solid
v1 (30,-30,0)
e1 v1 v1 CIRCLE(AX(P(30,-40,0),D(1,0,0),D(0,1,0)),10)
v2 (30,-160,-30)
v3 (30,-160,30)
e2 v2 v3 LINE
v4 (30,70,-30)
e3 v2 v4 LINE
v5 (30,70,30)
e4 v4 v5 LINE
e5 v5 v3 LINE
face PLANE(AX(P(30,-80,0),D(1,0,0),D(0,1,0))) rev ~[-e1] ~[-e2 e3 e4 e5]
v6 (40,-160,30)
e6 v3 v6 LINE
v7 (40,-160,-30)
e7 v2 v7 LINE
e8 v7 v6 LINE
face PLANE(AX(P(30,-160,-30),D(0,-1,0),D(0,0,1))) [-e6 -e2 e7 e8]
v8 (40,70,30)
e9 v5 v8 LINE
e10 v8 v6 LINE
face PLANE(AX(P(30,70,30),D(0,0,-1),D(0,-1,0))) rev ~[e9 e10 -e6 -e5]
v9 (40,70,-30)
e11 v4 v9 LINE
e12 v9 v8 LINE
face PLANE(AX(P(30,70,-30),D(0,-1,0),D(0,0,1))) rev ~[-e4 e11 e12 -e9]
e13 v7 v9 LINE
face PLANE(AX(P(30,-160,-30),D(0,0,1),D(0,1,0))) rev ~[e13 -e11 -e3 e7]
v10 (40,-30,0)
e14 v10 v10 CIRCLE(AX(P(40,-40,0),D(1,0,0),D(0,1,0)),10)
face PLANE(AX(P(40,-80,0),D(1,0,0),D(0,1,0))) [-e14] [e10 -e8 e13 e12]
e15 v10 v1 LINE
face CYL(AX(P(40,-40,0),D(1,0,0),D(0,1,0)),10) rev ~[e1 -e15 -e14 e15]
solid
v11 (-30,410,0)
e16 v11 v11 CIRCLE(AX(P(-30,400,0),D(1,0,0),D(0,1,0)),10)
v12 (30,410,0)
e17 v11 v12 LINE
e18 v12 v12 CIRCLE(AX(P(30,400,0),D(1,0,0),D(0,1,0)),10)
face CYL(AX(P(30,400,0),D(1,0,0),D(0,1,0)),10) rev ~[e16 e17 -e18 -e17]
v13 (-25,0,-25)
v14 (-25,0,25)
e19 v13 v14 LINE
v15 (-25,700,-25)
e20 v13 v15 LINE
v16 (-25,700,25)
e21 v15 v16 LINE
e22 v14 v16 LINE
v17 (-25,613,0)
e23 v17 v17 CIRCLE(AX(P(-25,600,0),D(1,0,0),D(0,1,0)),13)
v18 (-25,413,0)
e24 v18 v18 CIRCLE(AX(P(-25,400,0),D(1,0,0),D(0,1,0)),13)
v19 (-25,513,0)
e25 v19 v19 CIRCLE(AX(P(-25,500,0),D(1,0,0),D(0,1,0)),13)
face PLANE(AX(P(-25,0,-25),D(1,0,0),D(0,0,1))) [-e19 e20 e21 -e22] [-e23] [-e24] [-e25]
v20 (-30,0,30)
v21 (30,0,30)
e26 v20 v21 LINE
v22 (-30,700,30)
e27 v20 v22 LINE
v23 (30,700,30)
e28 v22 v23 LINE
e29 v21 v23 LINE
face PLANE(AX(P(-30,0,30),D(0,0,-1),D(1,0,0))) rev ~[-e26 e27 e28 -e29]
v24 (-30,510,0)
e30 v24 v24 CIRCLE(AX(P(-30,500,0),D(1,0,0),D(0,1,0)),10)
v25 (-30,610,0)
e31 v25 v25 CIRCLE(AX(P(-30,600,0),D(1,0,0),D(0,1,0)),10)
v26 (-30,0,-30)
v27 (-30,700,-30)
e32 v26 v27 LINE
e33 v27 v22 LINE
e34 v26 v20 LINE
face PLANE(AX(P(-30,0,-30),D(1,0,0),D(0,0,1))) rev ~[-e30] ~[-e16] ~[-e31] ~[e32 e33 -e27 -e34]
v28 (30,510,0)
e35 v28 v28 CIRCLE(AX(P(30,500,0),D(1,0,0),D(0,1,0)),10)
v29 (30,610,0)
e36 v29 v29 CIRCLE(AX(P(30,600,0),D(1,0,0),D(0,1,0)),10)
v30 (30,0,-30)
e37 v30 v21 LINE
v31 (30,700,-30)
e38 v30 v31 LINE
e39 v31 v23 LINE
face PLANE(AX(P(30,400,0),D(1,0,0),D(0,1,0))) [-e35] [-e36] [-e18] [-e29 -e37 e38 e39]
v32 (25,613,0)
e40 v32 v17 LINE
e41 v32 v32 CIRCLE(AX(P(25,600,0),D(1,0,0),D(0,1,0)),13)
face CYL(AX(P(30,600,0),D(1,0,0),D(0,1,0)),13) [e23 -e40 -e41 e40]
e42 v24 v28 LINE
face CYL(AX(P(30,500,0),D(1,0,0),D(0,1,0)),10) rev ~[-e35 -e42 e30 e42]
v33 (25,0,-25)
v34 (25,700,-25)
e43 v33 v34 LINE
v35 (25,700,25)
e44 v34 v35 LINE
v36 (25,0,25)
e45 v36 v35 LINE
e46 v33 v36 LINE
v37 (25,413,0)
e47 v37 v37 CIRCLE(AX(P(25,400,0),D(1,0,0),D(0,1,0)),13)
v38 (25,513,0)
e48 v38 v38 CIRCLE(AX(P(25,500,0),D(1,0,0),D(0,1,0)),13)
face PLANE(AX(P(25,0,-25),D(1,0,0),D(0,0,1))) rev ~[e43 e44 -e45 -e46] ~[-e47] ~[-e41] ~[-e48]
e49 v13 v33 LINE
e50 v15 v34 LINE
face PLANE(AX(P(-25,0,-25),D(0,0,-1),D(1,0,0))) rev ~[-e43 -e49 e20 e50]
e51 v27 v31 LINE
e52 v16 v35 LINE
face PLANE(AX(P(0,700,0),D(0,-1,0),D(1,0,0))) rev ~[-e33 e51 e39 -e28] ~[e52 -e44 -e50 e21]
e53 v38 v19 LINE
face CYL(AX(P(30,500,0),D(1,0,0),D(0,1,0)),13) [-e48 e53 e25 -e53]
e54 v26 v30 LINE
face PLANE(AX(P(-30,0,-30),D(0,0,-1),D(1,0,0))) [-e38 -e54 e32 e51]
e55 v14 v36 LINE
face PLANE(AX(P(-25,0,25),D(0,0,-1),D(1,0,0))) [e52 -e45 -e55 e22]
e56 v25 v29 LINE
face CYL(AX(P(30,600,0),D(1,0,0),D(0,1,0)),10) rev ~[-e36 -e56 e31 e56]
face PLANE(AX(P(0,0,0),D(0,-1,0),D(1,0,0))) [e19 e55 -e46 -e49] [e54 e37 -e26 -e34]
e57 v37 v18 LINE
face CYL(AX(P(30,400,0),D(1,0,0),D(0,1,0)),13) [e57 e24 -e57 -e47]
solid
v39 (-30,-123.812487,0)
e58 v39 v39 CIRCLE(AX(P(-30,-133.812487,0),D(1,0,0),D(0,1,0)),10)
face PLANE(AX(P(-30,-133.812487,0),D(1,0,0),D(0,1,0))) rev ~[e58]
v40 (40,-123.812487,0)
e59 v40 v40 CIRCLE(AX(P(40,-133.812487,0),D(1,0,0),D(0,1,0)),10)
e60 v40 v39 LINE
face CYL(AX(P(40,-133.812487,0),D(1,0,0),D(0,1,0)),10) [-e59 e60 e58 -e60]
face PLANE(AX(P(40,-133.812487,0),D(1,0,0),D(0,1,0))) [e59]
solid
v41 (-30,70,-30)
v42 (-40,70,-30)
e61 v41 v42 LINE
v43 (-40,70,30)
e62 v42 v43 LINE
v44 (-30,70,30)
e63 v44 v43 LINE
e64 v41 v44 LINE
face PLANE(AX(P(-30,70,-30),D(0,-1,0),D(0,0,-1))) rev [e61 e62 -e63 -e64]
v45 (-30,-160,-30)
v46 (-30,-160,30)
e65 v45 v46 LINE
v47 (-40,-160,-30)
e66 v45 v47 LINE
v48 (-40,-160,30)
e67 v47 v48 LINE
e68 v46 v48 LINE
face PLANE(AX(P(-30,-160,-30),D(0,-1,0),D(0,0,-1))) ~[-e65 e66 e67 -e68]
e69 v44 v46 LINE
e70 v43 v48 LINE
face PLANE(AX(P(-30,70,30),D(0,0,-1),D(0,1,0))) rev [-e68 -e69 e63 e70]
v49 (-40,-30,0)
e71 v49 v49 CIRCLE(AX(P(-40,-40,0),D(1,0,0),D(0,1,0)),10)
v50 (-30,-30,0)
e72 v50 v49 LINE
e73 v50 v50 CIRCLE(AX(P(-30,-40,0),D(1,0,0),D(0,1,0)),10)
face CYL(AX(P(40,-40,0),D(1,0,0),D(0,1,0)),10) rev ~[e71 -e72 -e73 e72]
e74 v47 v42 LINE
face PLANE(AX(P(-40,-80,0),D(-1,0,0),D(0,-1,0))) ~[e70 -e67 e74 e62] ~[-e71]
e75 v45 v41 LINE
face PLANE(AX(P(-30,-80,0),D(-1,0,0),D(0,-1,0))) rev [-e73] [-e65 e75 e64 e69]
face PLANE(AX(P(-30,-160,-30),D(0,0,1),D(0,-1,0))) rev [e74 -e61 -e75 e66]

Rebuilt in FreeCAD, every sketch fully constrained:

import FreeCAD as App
import Part
import Sketcher

V = App.Vector

doc = App.newDocument("Part")
body = doc.addObject("PartDesign::Body", "Body")

sketch1 = body.newObject("Sketcher::SketchObject", "Sketch")
sketch1.AttachmentSupport = (doc.getObject("XZ_Plane"), [""])
sketch1.MapMode = "FlatFace"
sketch1.addGeometry(Part.LineSegment(V(-30, 30, 0), V(-30, -30, 0)), False)
sketch1.addGeometry(Part.LineSegment(V(-30, -30, 0), V(30, -30, 0)), False)
sketch1.addGeometry(Part.LineSegment(V(30, -30, 0), V(30, 30, 0)), False)
sketch1.addGeometry(Part.LineSegment(V(30, 30, 0), V(-30, 30, 0)), False)
sketch1.addGeometry(Part.LineSegment(V(25, -25, 0), V(-25, -25, 0)), False)
sketch1.addGeometry(Part.LineSegment(V(-25, -25, 0), V(-25, 25, 0)), False)
sketch1.addGeometry(Part.LineSegment(V(-25, 25, 0), V(25, 25, 0)), False)
sketch1.addGeometry(Part.LineSegment(V(25, 25, 0), V(25, -25, 0)), False)
sketch1.addConstraint(Sketcher.Constraint("Coincident", 0, 2, 1, 1))
sketch1.addConstraint(Sketcher.Constraint("Coincident", 1, 2, 2, 1))
sketch1.addConstraint(Sketcher.Constraint("Coincident", 2, 2, 3, 1))
sketch1.addConstraint(Sketcher.Constraint("Coincident", 3, 2, 0, 1))
sketch1.addConstraint(Sketcher.Constraint("Coincident", 4, 2, 5, 1))
sketch1.addConstraint(Sketcher.Constraint("Coincident", 5, 2, 6, 1))
sketch1.addConstraint(Sketcher.Constraint("Coincident", 6, 2, 7, 1))
sketch1.addConstraint(Sketcher.Constraint("Coincident", 7, 2, 4, 1))
sketch1.addConstraint(Sketcher.Constraint("Vertical", 0))
sketch1.addConstraint(Sketcher.Constraint("Horizontal", 1))
sketch1.addConstraint(Sketcher.Constraint("Vertical", 2))
sketch1.addConstraint(Sketcher.Constraint("Horizontal", 3))
sketch1.addConstraint(Sketcher.Constraint("Horizontal", 4))
sketch1.addConstraint(Sketcher.Constraint("Vertical", 5))
sketch1.addConstraint(Sketcher.Constraint("Horizontal", 6))
sketch1.addConstraint(Sketcher.Constraint("Vertical", 7))
sketch1.addConstraint(Sketcher.Constraint("Symmetric", 0, 2, 2, 2, -1, 1))
sketch1.addConstraint(Sketcher.Constraint("Symmetric", 4, 2, 6, 2, -1, 1))
sketch1.addConstraint(Sketcher.Constraint("Equal", 3, 0))
sketch1.addConstraint(Sketcher.Constraint("Equal", 6, 5))
sketch1.addConstraint(Sketcher.Constraint("DistanceX", 1, 1, 1, 2, 60.0))
sketch1.addConstraint(Sketcher.Constraint("DistanceX", 4, 2, 4, 1, 50.0))
pad1 = body.newObject("PartDesign::Pad", "Pad")
pad1.Profile = sketch1
pad1.Length = 700
pad1.Reversed = True

sketch2 = body.newObject("Sketcher::SketchObject", "Sketch001")
sketch2.AttachmentSupport = (doc.getObject("YZ_Plane"), [""])
sketch2.MapMode = "FlatFace"
sketch2.AttachmentOffset = App.Placement(V(0, 0, 30), App.Rotation())
sketch2.addGeometry(Part.Circle(V(400, 0, 0), V(0, 0, 1), 13), False)
sketch2.addGeometry(Part.Circle(V(400, 0, 0), V(0, 0, 1), 10), False)
sketch2.addGeometry(Part.Circle(V(500, 0, 0), V(0, 0, 1), 13), False)
sketch2.addGeometry(Part.Circle(V(500, 0, 0), V(0, 0, 1), 10), False)
sketch2.addGeometry(Part.Circle(V(600, 0, 0), V(0, 0, 1), 13), False)
sketch2.addGeometry(Part.Circle(V(600, 0, 0), V(0, 0, 1), 10), False)
sketch2.addConstraint(Sketcher.Constraint("Coincident", 1, 3, 0, 3))
sketch2.addConstraint(Sketcher.Constraint("Coincident", 3, 3, 2, 3))
sketch2.addConstraint(Sketcher.Constraint("Coincident", 5, 3, 4, 3))
sketch2.addConstraint(Sketcher.Constraint("Equal", 0, 2))
sketch2.addConstraint(Sketcher.Constraint("Equal", 1, 3))
sketch2.addConstraint(Sketcher.Constraint("Equal", 2, 4))
sketch2.addConstraint(Sketcher.Constraint("Equal", 3, 5))
sketch2.addConstraint(Sketcher.Constraint("PointOnObject", 0, 3, -1))
sketch2.addConstraint(Sketcher.Constraint("PointOnObject", 2, 3, -1))
sketch2.addConstraint(Sketcher.Constraint("PointOnObject", 4, 3, -1))
sketch2.addConstraint(Sketcher.Constraint("Diameter", 0, 26.0))
sketch2.addConstraint(Sketcher.Constraint("Diameter", 1, 20.0))
sketch2.addConstraint(Sketcher.Constraint("DistanceX", -1, 1, 0, 3, 400.0))
sketch2.addConstraint(Sketcher.Constraint("DistanceX", -1, 1, 2, 3, 500.0))
sketch2.addConstraint(Sketcher.Constraint("DistanceX", -1, 1, 4, 3, 600.0))
pad2 = body.newObject("PartDesign::Pad", "Pad001")
pad2.Profile = sketch2
pad2.Type = "UpToLast"
pad2.Reversed = True

sketch3 = body.newObject("Sketcher::SketchObject", "Sketch002")
sketch3.AttachmentSupport = (doc.getObject("YZ_Plane"), [""])
sketch3.MapMode = "FlatFace"
sketch3.AttachmentOffset = App.Placement(V(0, 0, 30), App.Rotation())
sketch3.addGeometry(Part.Circle(V(600, 0, 0), V(0, 0, 1), 10), False)
sketch3.addGeometry(Part.Circle(V(500, 0, 0), V(0, 0, 1), 10), False)
sketch3.addGeometry(Part.Circle(V(400, 0, 0), V(0, 0, 1), 10), False)
sketch3.addConstraint(Sketcher.Constraint("Equal", 0, 1))
sketch3.addConstraint(Sketcher.Constraint("Equal", 1, 2))
sketch3.addConstraint(Sketcher.Constraint("PointOnObject", 0, 3, -1))
sketch3.addConstraint(Sketcher.Constraint("PointOnObject", 1, 3, -1))
sketch3.addConstraint(Sketcher.Constraint("PointOnObject", 2, 3, -1))
sketch3.addConstraint(Sketcher.Constraint("Diameter", 0, 20.0))
sketch3.addConstraint(Sketcher.Constraint("DistanceX", -1, 1, 0, 3, 600.0))
sketch3.addConstraint(Sketcher.Constraint("DistanceX", -1, 1, 1, 3, 500.0))
sketch3.addConstraint(Sketcher.Constraint("DistanceX", -1, 1, 2, 3, 400.0))
pocket1 = body.newObject("PartDesign::Pocket", "Pocket")
pocket1.Profile = sketch3
pocket1.Type = "ThroughAll"
body2 = doc.addObject("PartDesign::Body", "Body001")

sketch4 = body2.newObject("Sketcher::SketchObject", "Sketch003")
sketch4.AttachmentSupport = (doc.getObject("YZ_Plane001"), [""])
sketch4.MapMode = "FlatFace"
sketch4.AttachmentOffset = App.Placement(V(0, 0, 30), App.Rotation())
sketch4.addGeometry(Part.LineSegment(V(-160, 30, 0), V(-160, -30, 0)), False)
sketch4.addGeometry(Part.LineSegment(V(-160, -30, 0), V(70, -30, 0)), False)
sketch4.addGeometry(Part.LineSegment(V(70, -30, 0), V(70, 30, 0)), False)
sketch4.addGeometry(Part.LineSegment(V(70, 30, 0), V(-160, 30, 0)), False)
sketch4.addConstraint(Sketcher.Constraint("Coincident", 0, 2, 1, 1))
sketch4.addConstraint(Sketcher.Constraint("Coincident", 1, 2, 2, 1))
sketch4.addConstraint(Sketcher.Constraint("Coincident", 2, 2, 3, 1))
sketch4.addConstraint(Sketcher.Constraint("Coincident", 3, 2, 0, 1))
sketch4.addConstraint(Sketcher.Constraint("Vertical", 0))
sketch4.addConstraint(Sketcher.Constraint("Horizontal", 1))
sketch4.addConstraint(Sketcher.Constraint("Vertical", 2))
sketch4.addConstraint(Sketcher.Constraint("Horizontal", 3))
sketch4.addConstraint(Sketcher.Constraint("DistanceX", 1, 1, 1, 2, 230.0))
sketch4.addConstraint(Sketcher.Constraint("DistanceY", 0, 2, 0, 1, 60.0))
sketch4.addConstraint(Sketcher.Constraint("DistanceX", 0, 2, -1, 1, 160.0))
sketch4.addConstraint(Sketcher.Constraint("DistanceY", 0, 2, -1, 1, 30.0))
pad3 = body2.newObject("PartDesign::Pad", "Pad002")
pad3.Profile = sketch4
pad3.Length = 10
body3 = doc.addObject("PartDesign::Body", "Body002")
doc.recompute()

mirroring = doc.addObject("Part::Mirroring", "Mirroring")
mirroring.Source = body2
mirroring.Base = V(0, 0, 0)
mirroring.Normal = V(1, 0, 0)
body3.BaseFeature = mirroring
doc.recompute()
body4 = doc.addObject("PartDesign::Body", "Body003")

sketch5 = body4.newObject("Sketcher::SketchObject", "Sketch004")
sketch5.AttachmentSupport = (doc.getObject("YZ_Plane003"), [""])
sketch5.MapMode = "FlatFace"
sketch5.AttachmentOffset = App.Placement(V(0, 0, 40), App.Rotation())
sketch5.addGeometry(Part.Circle(V(-133.812487, 0, 0), V(0, 0, 1), 10), False)
sketch5.addConstraint(Sketcher.Constraint("PointOnObject", 0, 3, -1))
sketch5.addConstraint(Sketcher.Constraint("Diameter", 0, 20.0))
sketch5.addConstraint(Sketcher.Constraint("DistanceX", 0, 3, -1, 1, 133.812487))
pad4 = body4.newObject("PartDesign::Pad", "Pad003")
pad4.Profile = sketch5
pad4.Length = 70
pad4.Reversed = True
body5 = doc.addObject("PartDesign::Body", "Body004")

sketch6 = body5.newObject("Sketcher::SketchObject", "Sketch005")
sketch6.AttachmentSupport = (doc.getObject("YZ_Plane004"), [""])
sketch6.MapMode = "FlatFace"
sketch6.AttachmentOffset = App.Placement(V(0, 0, 40), App.Rotation())
sketch6.addGeometry(Part.Circle(V(-40, 0, 0), V(0, 0, 1), 10), False)
sketch6.addConstraint(Sketcher.Constraint("PointOnObject", 0, 3, -1))
sketch6.addConstraint(Sketcher.Constraint("Diameter", 0, 20.0))
sketch6.addConstraint(Sketcher.Constraint("DistanceX", 0, 3, -1, 1, 40.0))
pad5 = body5.newObject("PartDesign::Pad", "Pad004")
pad5.Profile = sketch6
pad5.Length = 80.001
pad5.Reversed = True
doc.recompute()

body6 = doc.addObject("PartDesign::Body", "Body005")
body6.BaseFeature = body5
boolean = body2.newObject("PartDesign::Boolean", "Boolean")
boolean.Type = "Cut"
boolean.addObjects([body6])
doc.recompute()

boolean2 = body3.newObject("PartDesign::Boolean", "Boolean001")
boolean2.Type = "Cut"
boolean2.addObjects([body5])
mirroring.Visibility = False

doc.recompute()
